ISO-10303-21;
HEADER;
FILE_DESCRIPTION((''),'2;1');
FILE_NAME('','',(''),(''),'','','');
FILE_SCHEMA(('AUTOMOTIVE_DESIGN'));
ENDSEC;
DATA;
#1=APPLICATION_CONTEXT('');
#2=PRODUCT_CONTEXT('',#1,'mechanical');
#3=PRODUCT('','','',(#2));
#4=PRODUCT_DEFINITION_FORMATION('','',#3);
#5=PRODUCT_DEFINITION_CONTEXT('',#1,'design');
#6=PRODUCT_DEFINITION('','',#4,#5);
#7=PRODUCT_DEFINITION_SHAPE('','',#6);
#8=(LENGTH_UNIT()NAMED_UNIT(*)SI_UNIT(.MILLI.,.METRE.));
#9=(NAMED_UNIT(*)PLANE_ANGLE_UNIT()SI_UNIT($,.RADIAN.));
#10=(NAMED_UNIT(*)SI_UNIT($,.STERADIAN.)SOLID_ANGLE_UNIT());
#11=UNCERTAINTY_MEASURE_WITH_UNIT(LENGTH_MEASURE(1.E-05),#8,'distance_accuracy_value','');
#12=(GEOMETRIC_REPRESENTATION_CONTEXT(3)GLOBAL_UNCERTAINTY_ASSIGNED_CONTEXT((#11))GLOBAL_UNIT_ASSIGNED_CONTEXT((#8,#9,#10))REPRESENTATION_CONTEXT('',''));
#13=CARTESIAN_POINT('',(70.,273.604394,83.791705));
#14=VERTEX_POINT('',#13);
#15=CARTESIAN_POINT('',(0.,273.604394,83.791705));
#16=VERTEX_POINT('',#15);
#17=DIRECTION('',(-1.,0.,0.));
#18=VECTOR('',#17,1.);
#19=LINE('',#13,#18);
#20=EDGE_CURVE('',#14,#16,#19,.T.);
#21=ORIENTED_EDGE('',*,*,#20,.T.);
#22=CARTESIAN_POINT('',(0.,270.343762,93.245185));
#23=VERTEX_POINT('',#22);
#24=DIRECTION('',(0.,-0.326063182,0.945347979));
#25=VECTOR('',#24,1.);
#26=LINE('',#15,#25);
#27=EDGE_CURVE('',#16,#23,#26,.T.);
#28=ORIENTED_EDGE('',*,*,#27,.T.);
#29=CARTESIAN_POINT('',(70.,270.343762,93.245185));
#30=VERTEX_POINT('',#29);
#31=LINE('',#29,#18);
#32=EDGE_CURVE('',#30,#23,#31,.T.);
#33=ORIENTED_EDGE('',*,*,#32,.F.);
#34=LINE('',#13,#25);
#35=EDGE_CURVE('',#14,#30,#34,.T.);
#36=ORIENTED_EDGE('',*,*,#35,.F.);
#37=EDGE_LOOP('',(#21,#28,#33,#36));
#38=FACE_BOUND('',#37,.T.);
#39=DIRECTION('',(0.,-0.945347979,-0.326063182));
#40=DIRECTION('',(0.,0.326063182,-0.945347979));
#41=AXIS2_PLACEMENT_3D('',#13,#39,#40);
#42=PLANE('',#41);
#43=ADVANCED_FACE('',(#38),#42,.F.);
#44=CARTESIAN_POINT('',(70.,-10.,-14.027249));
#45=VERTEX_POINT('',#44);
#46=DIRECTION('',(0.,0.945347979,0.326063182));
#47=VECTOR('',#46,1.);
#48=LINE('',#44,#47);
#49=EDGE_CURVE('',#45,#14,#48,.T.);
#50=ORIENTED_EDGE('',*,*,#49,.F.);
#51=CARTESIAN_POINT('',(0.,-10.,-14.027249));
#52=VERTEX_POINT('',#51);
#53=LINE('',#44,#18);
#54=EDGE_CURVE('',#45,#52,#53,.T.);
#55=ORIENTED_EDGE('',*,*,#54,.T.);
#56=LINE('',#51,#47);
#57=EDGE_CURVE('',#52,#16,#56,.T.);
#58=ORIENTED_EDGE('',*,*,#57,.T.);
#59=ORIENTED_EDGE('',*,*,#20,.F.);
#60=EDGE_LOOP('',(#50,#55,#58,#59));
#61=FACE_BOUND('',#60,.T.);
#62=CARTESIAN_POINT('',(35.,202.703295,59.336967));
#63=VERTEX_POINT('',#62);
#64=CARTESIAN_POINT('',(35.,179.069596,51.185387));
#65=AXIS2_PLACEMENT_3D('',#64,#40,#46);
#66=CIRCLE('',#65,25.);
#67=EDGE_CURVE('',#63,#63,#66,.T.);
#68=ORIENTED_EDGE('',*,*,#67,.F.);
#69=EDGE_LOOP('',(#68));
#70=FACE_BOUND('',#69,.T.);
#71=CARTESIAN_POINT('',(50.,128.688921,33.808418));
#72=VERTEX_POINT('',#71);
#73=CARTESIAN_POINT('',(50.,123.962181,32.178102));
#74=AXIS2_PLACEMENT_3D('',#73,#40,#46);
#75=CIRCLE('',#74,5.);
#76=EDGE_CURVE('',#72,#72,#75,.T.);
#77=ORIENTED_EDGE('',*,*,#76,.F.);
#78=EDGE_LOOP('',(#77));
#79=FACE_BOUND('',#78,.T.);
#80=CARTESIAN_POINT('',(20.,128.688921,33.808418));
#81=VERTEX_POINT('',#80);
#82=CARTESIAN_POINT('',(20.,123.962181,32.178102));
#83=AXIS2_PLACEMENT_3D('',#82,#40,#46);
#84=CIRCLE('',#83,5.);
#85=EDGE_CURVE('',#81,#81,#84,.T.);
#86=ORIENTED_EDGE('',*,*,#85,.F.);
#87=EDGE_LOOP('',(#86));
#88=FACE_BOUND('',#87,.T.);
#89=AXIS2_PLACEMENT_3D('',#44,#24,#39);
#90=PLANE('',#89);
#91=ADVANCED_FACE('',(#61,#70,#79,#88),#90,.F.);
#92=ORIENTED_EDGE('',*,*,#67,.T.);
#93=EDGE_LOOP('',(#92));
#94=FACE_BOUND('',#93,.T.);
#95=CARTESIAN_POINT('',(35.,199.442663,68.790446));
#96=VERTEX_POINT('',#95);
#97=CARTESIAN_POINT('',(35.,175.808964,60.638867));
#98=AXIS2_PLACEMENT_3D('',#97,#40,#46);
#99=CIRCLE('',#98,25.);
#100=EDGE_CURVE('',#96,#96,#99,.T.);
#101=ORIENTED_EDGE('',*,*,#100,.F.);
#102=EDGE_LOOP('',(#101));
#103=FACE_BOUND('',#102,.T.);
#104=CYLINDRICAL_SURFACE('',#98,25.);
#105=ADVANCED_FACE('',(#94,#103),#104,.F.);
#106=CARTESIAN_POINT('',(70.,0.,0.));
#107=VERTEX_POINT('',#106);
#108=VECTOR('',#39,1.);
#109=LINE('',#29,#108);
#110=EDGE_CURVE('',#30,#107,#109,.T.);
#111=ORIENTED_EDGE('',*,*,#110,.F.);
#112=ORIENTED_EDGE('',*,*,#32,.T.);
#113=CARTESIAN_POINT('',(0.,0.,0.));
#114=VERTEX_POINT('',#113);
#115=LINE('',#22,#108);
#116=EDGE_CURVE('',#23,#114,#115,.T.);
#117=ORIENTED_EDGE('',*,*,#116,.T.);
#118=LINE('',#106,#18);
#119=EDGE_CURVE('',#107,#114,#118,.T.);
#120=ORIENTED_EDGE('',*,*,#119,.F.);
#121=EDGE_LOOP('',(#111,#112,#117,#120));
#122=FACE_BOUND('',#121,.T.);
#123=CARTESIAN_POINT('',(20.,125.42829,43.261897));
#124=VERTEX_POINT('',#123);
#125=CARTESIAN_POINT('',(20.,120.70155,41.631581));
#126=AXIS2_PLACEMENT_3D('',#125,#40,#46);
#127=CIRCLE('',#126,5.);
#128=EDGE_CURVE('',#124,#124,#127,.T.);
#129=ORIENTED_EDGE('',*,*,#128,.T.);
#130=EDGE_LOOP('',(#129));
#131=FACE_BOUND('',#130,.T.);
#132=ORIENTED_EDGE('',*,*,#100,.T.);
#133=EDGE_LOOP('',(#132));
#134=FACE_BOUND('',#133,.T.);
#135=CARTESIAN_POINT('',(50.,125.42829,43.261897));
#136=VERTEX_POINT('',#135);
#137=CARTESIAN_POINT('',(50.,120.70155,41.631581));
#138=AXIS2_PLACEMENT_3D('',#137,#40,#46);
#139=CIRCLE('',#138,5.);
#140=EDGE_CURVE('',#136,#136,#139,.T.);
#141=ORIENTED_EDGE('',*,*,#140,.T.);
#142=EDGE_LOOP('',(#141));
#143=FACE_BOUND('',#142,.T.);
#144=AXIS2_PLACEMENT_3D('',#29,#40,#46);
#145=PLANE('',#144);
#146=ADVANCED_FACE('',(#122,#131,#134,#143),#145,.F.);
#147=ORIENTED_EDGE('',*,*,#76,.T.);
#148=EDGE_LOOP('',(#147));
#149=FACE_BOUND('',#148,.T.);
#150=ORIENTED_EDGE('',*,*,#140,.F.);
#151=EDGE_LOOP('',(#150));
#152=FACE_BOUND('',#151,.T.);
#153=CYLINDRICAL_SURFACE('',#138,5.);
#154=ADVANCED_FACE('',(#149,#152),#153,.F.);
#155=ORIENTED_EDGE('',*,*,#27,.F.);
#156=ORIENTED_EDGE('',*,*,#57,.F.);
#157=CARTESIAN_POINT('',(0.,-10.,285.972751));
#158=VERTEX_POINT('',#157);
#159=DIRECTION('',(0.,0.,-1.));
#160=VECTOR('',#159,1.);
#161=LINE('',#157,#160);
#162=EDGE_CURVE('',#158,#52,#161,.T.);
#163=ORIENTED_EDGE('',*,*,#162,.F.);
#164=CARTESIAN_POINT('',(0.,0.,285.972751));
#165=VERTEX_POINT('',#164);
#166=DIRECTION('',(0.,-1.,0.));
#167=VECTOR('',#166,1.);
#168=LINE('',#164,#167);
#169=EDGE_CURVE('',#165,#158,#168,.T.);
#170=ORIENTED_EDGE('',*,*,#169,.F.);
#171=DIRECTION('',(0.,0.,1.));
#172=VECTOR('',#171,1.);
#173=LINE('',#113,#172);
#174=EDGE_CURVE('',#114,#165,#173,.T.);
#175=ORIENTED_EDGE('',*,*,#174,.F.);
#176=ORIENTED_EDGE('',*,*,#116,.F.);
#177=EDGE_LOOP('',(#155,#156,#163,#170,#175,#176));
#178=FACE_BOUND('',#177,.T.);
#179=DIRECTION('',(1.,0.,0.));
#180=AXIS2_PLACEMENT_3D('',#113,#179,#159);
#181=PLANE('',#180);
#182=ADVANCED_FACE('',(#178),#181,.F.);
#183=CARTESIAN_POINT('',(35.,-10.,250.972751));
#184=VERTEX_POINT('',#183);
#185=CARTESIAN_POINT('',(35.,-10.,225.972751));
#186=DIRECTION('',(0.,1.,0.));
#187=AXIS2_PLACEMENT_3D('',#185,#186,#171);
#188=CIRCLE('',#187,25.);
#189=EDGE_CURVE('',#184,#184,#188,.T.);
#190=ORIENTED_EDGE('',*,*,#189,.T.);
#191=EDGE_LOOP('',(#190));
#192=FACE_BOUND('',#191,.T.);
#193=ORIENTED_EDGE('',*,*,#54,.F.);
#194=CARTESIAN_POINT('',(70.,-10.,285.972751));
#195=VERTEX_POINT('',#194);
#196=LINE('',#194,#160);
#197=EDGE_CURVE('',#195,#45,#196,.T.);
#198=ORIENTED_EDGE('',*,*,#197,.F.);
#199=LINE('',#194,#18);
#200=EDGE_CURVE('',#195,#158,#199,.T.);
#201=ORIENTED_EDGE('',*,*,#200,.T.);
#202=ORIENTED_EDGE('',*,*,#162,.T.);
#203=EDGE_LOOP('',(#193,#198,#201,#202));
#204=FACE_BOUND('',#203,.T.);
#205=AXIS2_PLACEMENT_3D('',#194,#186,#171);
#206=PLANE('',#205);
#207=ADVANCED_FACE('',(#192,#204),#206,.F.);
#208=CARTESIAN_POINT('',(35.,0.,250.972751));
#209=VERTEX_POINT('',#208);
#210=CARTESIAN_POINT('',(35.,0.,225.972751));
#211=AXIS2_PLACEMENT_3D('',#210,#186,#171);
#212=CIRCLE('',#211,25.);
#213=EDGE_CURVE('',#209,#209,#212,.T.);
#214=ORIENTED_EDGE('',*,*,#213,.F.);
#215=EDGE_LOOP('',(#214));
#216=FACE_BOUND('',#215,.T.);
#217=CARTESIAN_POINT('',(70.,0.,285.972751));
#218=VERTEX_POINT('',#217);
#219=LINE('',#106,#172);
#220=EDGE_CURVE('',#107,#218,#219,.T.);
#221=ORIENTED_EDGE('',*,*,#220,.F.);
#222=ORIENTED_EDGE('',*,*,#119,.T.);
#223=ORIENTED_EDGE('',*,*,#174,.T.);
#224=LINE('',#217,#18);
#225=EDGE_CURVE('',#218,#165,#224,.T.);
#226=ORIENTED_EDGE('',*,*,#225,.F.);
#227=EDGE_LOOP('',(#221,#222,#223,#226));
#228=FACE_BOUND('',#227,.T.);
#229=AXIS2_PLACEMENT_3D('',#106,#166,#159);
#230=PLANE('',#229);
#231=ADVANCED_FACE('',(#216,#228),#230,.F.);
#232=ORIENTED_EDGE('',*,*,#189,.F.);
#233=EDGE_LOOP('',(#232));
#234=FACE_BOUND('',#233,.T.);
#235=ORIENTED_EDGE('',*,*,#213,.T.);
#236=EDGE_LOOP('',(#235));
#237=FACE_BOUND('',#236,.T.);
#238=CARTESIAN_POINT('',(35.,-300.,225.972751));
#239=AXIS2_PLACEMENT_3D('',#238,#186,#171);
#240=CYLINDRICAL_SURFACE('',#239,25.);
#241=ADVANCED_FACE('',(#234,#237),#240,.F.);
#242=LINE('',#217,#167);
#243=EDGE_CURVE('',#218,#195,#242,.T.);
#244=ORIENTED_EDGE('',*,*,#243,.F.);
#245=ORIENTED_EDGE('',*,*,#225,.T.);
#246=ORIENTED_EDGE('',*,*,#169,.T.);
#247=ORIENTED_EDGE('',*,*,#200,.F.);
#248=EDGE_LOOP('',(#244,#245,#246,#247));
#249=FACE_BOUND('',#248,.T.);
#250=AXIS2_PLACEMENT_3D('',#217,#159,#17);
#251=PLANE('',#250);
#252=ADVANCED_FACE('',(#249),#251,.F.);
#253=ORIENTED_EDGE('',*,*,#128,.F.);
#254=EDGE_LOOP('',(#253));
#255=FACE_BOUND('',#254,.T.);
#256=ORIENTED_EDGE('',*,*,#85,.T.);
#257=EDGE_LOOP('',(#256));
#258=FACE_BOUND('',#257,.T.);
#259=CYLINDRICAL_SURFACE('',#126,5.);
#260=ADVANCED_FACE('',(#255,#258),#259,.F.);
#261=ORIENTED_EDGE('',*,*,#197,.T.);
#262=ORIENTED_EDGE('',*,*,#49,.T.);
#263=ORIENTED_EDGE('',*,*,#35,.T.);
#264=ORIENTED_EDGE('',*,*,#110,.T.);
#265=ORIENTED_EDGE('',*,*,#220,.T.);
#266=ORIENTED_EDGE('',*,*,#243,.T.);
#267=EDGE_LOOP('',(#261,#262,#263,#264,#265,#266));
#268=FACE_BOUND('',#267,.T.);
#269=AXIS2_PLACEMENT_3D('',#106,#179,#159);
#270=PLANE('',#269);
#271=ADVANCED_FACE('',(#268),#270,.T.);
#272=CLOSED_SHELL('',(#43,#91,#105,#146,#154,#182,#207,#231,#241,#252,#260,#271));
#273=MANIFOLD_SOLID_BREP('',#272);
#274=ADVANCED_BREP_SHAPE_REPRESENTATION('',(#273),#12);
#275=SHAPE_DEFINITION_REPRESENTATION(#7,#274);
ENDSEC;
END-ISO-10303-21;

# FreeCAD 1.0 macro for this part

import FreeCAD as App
import Part
import Sketcher
Q = App.Units.Quantity


def add_polygon(sketch, points):
    """Adds a closed chain of lines whose ends are joined by coincident constraints."""
    first, n = sketch.GeometryCount, len(points)
    for a, b in zip(points, points[1:] + points[:1]):
        sketch.addGeometry(Part.LineSegment(App.Vector(*a, 0), App.Vector(*b, 0)), False)
    for i in range(n):
        sketch.addConstraint(Sketcher.Constraint("Coincident", first + i, 2, first + (i + 1) % n, 1))

doc = App.newDocument("Part")
body = doc.addObject("PartDesign::Body", "Body")

# Sketch on YZ plane
sketch1 = body.newObject("Sketcher::SketchObject", "Sketch")
sketch1.AttachmentSupport = (doc.getObject("YZ_Plane"), [""])
sketch1.MapMode = "FlatFace"
add_polygon(sketch1, [(270, 93), (0, 0), (0, 286), (-10, 286), (-10, -14), (274, 84)])  # lines 0-5
sketch1.addConstraint([
    Sketcher.Constraint("Vertical", 1),
    Sketcher.Constraint("Horizontal", 2),
    Sketcher.Constraint("Vertical", 3),
    Sketcher.Constraint("Coincident", 0, 2, -1, 1),
    Sketcher.Constraint("Parallel", 0, 4),
    Sketcher.Constraint("Perpendicular", 4, 5),
    Sketcher.Constraint("DistanceX", 2, 2, 2, 1, Q("10 mm")),
    Sketcher.Constraint("DistanceY", 3, 2, 3, 1, Q("300 mm")),
    Sketcher.Constraint("Distance", 4, Q("300 mm")),
    Sketcher.Constraint("Distance", 5, Q("10 mm")),
    Sketcher.Constraint("Angle", 0, Q("-160.97 deg")),
])
pad1 = body.newObject("PartDesign::Pad", "Pad")
pad1.Profile = sketch1
pad1.Length = 70

# Sketch on an angled plane
sketch2 = body.newObject("Sketcher::SketchObject", "Sketch001")
sketch2.Placement = App.Placement(App.Vector(0, 3.260632, -9.45348), App.Rotation(App.Vector(1, 0, 0), App.Vector(0, -0.945347979, -0.326063182), App.Vector(0, 0.326063182, -0.945347979), "ZXY"))
sketch2.addGeometry(Part.Circle(App.Vector(35, -186, 0), App.Vector(0, 0, 1), 25), False)
sketch2.addConstraint([
    Sketcher.Constraint("Diameter", 0, Q("50 mm")),
    Sketcher.Constraint("DistanceX", -1, 1, 0, 3, Q("35 mm")),
    Sketcher.Constraint("DistanceY", 0, 3, -1, 1, Q("185.972751 mm")),
])
pocket1 = body.newObject("PartDesign::Pocket", "Pocket")
pocket1.Profile = sketch2
pocket1.Length = 10

# Sketch on XZ plane
sketch3 = body.newObject("Sketcher::SketchObject", "Sketch002")
sketch3.AttachmentSupport = (doc.getObject("XZ_Plane"), [""])
sketch3.MapMode = "FlatFace"
sketch3.addGeometry(Part.Circle(App.Vector(35, 226, 0), App.Vector(0, 0, 1), 25), False)
sketch3.addConstraint([
    Sketcher.Constraint("Diameter", 0, Q("50 mm")),
    Sketcher.Constraint("DistanceX", -1, 1, 0, 3, Q("35 mm")),
    Sketcher.Constraint("DistanceY", -1, 1, 0, 3, Q("225.972751 mm")),
])
pocket2 = body.newObject("PartDesign::Pocket", "Pocket001")
pocket2.Profile = sketch3
pocket2.Length = 300
pocket2.Reversed = True

# Sketch on an angled plane
sketch4 = body.newObject("Sketcher::SketchObject", "Sketch003")
sketch4.Placement = App.Placement(App.Vector(0, 3.260632, -9.45348), App.Rotation(App.Vector(1, 0, 0), App.Vector(0, -0.945347979, -0.326063182), App.Vector(0, 0.326063182, -0.945347979), "ZXY"))
sketch4.addGeometry([
    Part.Circle(App.Vector(50, -198, 0), App.Vector(0, 0, 1), 5),
    Part.Circle(App.Vector(20, -198, 0), App.Vector(0, 0, 1), 5),
    Part.Circle(App.Vector(20, -128, 0), App.Vector(0, 0, 1), 5),
    Part.Circle(App.Vector(50, -128, 0), App.Vector(0, 0, 1), 5),
], False)
sketch4.addConstraint([
    Sketcher.Constraint("Equal", 0, 1),
    Sketcher.Constraint("Equal", 1, 2),
    Sketcher.Constraint("Equal", 2, 3),
    Sketcher.Constraint("Horizontal", 0, 3, 1, 3),
    Sketcher.Constraint("Horizontal", 2, 3, 3, 3),
    Sketcher.Constraint("Vertical", 1, 3, 2, 3),
    Sketcher.Constraint("Vertical", 0, 3, 3, 3),
    Sketcher.Constraint("Diameter", 0, Q("10 mm")),
    Sketcher.Constraint("DistanceX", -1, 1, 0, 3, Q("50 mm")),
    Sketcher.Constraint("DistanceX", -1, 1, 1, 3, Q("20 mm")),
    Sketcher.Constraint("DistanceY", 1, 3, 2, 3, Q("70 mm")),
    Sketcher.Constraint("DistanceY", 0, 3, -1, 1, Q("197.679492 mm")),
])
pocket3 = body.newObject("PartDesign::Pocket", "Pocket002")
pocket3.Profile = sketch4
pocket3.Length = 10

doc.recompute()
